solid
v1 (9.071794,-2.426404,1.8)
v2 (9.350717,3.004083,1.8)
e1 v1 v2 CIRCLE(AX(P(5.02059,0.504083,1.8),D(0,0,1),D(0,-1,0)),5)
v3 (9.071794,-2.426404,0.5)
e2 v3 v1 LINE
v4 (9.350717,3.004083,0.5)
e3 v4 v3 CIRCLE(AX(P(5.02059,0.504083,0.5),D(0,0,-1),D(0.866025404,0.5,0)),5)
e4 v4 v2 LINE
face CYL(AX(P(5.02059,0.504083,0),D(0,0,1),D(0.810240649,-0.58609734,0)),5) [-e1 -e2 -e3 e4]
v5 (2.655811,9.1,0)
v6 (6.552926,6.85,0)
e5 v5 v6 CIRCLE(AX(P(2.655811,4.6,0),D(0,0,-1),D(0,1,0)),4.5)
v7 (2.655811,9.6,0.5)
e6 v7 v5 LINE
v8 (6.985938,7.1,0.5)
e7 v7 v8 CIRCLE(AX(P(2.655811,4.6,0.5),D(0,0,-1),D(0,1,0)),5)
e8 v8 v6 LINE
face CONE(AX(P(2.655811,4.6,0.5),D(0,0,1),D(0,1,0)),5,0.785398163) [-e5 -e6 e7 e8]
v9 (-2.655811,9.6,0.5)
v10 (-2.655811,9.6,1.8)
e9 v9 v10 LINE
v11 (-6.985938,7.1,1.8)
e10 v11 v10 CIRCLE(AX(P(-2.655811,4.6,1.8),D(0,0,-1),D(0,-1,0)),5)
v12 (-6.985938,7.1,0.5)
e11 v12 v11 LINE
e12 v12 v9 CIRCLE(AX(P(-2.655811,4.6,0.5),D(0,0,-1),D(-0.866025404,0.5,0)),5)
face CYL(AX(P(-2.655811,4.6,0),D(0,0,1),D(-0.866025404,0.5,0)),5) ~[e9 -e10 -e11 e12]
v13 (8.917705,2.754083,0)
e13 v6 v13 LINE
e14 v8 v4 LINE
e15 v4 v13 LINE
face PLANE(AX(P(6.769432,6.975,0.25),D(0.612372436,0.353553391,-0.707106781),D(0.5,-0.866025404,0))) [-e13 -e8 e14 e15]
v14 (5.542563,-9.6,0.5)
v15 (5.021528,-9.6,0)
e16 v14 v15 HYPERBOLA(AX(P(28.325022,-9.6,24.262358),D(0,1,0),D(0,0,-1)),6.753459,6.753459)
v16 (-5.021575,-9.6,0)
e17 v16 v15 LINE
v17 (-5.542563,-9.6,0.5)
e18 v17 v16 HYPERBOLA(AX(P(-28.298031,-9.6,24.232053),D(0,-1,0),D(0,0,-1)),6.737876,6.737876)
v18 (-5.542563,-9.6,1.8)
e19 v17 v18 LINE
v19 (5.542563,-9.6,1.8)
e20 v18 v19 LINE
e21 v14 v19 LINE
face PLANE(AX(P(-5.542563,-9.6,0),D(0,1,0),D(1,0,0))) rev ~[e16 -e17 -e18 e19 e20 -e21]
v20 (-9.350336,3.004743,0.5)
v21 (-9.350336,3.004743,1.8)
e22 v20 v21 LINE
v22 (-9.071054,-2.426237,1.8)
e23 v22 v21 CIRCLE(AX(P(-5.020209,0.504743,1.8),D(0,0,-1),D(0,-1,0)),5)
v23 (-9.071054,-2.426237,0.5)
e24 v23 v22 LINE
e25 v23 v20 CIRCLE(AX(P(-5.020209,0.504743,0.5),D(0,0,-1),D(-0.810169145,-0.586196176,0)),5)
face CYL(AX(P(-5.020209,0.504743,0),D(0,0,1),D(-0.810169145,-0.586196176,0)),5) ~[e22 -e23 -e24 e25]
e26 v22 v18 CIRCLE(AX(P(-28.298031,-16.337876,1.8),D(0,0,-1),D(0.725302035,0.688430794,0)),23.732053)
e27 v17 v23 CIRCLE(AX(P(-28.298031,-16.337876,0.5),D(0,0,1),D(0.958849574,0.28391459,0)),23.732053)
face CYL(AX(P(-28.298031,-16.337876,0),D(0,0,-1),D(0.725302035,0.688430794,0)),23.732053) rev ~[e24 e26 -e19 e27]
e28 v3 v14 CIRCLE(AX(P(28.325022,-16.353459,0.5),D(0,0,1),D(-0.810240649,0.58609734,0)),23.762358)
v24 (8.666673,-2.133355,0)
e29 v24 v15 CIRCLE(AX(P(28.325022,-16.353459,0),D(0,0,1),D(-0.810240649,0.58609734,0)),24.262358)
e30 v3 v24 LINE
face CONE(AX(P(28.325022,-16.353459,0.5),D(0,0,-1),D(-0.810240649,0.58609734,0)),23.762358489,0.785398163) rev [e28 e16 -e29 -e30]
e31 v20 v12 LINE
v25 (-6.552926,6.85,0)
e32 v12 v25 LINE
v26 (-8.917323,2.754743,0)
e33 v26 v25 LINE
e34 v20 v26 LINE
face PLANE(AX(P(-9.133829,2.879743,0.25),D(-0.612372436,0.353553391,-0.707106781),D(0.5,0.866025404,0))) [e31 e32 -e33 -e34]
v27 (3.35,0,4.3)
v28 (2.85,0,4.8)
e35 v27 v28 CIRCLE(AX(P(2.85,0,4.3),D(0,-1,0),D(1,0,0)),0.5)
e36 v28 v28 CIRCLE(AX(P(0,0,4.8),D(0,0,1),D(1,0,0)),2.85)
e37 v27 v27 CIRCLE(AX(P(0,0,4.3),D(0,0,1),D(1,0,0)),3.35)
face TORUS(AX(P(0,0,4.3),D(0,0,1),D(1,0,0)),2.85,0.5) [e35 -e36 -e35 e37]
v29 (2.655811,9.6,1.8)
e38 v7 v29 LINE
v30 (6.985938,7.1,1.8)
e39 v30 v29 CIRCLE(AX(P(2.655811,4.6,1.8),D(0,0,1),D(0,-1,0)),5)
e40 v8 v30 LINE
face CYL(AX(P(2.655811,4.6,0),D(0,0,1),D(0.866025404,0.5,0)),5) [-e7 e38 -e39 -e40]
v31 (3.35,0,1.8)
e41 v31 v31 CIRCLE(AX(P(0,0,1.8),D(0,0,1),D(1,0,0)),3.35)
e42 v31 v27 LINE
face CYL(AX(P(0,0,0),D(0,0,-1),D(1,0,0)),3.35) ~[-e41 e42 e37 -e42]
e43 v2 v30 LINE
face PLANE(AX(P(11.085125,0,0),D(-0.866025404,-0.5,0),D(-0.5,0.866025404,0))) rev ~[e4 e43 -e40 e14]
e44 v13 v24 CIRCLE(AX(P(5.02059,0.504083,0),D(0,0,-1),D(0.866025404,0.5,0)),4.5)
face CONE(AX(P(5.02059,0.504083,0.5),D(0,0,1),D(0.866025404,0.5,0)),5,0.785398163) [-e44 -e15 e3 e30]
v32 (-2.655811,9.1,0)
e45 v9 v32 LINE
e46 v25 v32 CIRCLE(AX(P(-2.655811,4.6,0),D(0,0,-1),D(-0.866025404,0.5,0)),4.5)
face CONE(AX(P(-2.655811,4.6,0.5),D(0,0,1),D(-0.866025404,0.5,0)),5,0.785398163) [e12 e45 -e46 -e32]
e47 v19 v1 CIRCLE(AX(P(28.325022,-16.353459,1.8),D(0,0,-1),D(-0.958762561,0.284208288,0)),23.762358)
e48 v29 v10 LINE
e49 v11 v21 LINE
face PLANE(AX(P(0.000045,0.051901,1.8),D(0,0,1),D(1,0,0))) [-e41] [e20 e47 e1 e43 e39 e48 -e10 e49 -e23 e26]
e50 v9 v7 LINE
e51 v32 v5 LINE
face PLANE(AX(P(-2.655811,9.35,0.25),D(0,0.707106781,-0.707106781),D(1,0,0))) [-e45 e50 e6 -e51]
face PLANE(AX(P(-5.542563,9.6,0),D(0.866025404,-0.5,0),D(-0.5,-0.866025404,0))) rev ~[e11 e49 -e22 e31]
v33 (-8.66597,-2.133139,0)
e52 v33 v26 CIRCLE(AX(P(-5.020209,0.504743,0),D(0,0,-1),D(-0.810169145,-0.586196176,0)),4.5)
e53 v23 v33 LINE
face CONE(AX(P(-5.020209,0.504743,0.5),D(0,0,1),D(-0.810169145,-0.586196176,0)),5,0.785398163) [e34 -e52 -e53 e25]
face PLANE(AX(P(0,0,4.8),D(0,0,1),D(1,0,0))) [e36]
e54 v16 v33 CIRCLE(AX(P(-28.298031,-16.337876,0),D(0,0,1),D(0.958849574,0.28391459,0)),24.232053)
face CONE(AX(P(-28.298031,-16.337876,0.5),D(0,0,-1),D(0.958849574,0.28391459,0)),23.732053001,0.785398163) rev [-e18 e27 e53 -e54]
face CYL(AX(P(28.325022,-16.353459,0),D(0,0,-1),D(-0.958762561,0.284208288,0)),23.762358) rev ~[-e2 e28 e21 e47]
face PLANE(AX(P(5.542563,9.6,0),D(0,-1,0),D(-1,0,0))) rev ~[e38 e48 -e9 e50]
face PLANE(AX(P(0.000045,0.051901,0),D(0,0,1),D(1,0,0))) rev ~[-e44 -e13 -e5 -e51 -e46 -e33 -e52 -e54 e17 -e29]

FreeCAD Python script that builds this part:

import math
import FreeCAD as App
import Part
import Sketcher
from FreeCAD import Vector
Q = App.Units.Quantity


def edges_at(feature, points):
    """Names of the edges that pass closest to the given points."""
    edges = feature.Shape.Edges
    near = lambda p: min(range(len(edges)), key=lambda i: edges[i].distToShape(Part.Vertex(*p))[0])
    return sorted({f"Edge{near(p) + 1}" for p in points})

doc = App.newDocument("Part")
params = doc.addObject("Spreadsheet::Sheet", "Params")
for row, (alias, value) in enumerate([
    ("sketch1_diameter", "6.7 mm"),
    ("pad1_length", "1.8 mm"),
    ("fillet_radius", "5 mm"),
    ("sketch2_diameter", "6.7 mm"),
    ("pad2_length", "4.8 mm"),
    ("fillet2_radius", "0.5 mm"),
    ("chamfer_size", "0.5 mm"),
], start=1):
    params.set(f"A{row}", alias)
    params.set(f"B{row}", "=" + value)
    params.setAlias(f"B{row}", alias)

body = doc.addObject("PartDesign::Body", "Body")

sketch1 = body.newObject("Sketcher::SketchObject", "Sketch")
sketch1.AttachmentSupport = (doc.getObject("XY_Plane"), [""])
sketch1.MapMode = "FlatFace"
sketch1.addGeometry([
    Part.LineSegment(Vector(-5.542563, -9.6, 0), Vector(5.542563, -9.6, 0)),
    Part.ArcOfCircle(Part.Circle(Vector(28.325022, -16.353459, 0), Vector(0, 0, 1), 23.762358), math.radians(136.51153), math.radians(163.48847)),
    Part.LineSegment(Vector(11.085125, 0, 0), Vector(5.542563, 9.6, 0)),
    Part.LineSegment(Vector(5.542563, 9.6, 0), Vector(-5.542563, 9.6, 0)),
    Part.LineSegment(Vector(-5.542563, 9.6, 0), Vector(-11.085125, 0, 0)),
    Part.ArcOfCircle(Part.Circle(Vector(-28.298031, -16.337876, 0), Vector(0, 0, 1), 23.732053), math.radians(16.493979), math.radians(43.506021)),
    Part.Circle(Vector(0, 0, 0), Vector(0, 0, 1), 3.35),
], False)
sketch1.addConstraint([
    Sketcher.Constraint("Coincident", 0, 2, 1, 2),
    Sketcher.Constraint("Coincident", 1, 1, 2, 1),
    Sketcher.Constraint("Coincident", 2, 2, 3, 1),
    Sketcher.Constraint("Coincident", 3, 2, 4, 1),
    Sketcher.Constraint("Coincident", 4, 2, 5, 2),
    Sketcher.Constraint("Coincident", 5, 1, 0, 1),
    Sketcher.Constraint("Horizontal", 0),
    Sketcher.Constraint("Horizontal", 3),
    Sketcher.Constraint("Coincident", 6, 3, -1, 1),
    Sketcher.Constraint("Symmetric", 0, 2, 3, 2, -1, 1),
    Sketcher.Constraint("Symmetric", 1, 1, 4, 2, -1, 1),
    Sketcher.Constraint("PointOnObject", 1, 1, -1),
    Sketcher.Constraint("Vertical", 0, 2, 2, 2),
    Sketcher.Constraint("Vertical", 3, 2, 5, 1),
    Sketcher.Constraint("Diameter", 6, Q("6.7 mm")),
    Sketcher.Constraint("Angle", 2, Q("120 deg")),
    Sketcher.Constraint("DistanceY", 0, 2, -1, 1, Q("9.6 mm")),
    Sketcher.Constraint("Radius", 1, Q("23.762358 mm")),
    Sketcher.Constraint("Radius", 5, Q("23.732053 mm")),
    Sketcher.Constraint("DistanceX", 0, 1, 0, 2, Q("11.085125 mm")),
])
sketch1.setExpression("Constraints[14]", "Params.sketch1_diameter")
pad1 = body.newObject("PartDesign::Pad", "Pad")
pad1.Profile = sketch1
pad1.setExpression("Length", "Params.pad1_length")
doc.recompute()

fillet = body.newObject("PartDesign::Fillet", "Fillet")
fillet.Base = (pad1, edges_at(pad1, [
    (-11.085, 0, 0.9),
    (-5.543, 9.6, 0.9),
    (5.543, 9.6, 0.9),
    (11.085, 0, 0.9),
]))
fillet.setExpression("Radius", "Params.fillet_radius")

sketch2 = body.newObject("Sketcher::SketchObject", "Sketch001")
sketch2.AttachmentSupport = (doc.getObject("XY_Plane"), [""])
sketch2.MapMode = "FlatFace"
sketch2.addGeometry(Part.Circle(Vector(0, 0, 0), Vector(0, 0, 1), 3.35), False)
sketch2.addConstraint([
    Sketcher.Constraint("Coincident", 0, 3, -1, 1),
    Sketcher.Constraint("Diameter", 0, Q("6.7 mm")),
])
sketch2.setExpression("Constraints[1]", "Params.sketch2_diameter")
pad2 = body.newObject("PartDesign::Pad", "Pad001")
pad2.Profile = sketch2
pad2.setExpression("Length", "Params.pad2_length")
doc.recompute()

fillet2 = body.newObject("PartDesign::Fillet", "Fillet001")
fillet2.Base = (pad2, edges_at(pad2, [(-3.35, 0, 4.8)]))
fillet2.setExpression("Radius", "Params.fillet2_radius")
doc.recompute()

chamfer = body.newObject("PartDesign::Chamfer", "Chamfer")
chamfer.Base = (fillet2, edges_at(fillet2, [(-5.156, 8.93, 0)]))
chamfer.setExpression("Size", "Params.chamfer_size")

doc.recompute()
